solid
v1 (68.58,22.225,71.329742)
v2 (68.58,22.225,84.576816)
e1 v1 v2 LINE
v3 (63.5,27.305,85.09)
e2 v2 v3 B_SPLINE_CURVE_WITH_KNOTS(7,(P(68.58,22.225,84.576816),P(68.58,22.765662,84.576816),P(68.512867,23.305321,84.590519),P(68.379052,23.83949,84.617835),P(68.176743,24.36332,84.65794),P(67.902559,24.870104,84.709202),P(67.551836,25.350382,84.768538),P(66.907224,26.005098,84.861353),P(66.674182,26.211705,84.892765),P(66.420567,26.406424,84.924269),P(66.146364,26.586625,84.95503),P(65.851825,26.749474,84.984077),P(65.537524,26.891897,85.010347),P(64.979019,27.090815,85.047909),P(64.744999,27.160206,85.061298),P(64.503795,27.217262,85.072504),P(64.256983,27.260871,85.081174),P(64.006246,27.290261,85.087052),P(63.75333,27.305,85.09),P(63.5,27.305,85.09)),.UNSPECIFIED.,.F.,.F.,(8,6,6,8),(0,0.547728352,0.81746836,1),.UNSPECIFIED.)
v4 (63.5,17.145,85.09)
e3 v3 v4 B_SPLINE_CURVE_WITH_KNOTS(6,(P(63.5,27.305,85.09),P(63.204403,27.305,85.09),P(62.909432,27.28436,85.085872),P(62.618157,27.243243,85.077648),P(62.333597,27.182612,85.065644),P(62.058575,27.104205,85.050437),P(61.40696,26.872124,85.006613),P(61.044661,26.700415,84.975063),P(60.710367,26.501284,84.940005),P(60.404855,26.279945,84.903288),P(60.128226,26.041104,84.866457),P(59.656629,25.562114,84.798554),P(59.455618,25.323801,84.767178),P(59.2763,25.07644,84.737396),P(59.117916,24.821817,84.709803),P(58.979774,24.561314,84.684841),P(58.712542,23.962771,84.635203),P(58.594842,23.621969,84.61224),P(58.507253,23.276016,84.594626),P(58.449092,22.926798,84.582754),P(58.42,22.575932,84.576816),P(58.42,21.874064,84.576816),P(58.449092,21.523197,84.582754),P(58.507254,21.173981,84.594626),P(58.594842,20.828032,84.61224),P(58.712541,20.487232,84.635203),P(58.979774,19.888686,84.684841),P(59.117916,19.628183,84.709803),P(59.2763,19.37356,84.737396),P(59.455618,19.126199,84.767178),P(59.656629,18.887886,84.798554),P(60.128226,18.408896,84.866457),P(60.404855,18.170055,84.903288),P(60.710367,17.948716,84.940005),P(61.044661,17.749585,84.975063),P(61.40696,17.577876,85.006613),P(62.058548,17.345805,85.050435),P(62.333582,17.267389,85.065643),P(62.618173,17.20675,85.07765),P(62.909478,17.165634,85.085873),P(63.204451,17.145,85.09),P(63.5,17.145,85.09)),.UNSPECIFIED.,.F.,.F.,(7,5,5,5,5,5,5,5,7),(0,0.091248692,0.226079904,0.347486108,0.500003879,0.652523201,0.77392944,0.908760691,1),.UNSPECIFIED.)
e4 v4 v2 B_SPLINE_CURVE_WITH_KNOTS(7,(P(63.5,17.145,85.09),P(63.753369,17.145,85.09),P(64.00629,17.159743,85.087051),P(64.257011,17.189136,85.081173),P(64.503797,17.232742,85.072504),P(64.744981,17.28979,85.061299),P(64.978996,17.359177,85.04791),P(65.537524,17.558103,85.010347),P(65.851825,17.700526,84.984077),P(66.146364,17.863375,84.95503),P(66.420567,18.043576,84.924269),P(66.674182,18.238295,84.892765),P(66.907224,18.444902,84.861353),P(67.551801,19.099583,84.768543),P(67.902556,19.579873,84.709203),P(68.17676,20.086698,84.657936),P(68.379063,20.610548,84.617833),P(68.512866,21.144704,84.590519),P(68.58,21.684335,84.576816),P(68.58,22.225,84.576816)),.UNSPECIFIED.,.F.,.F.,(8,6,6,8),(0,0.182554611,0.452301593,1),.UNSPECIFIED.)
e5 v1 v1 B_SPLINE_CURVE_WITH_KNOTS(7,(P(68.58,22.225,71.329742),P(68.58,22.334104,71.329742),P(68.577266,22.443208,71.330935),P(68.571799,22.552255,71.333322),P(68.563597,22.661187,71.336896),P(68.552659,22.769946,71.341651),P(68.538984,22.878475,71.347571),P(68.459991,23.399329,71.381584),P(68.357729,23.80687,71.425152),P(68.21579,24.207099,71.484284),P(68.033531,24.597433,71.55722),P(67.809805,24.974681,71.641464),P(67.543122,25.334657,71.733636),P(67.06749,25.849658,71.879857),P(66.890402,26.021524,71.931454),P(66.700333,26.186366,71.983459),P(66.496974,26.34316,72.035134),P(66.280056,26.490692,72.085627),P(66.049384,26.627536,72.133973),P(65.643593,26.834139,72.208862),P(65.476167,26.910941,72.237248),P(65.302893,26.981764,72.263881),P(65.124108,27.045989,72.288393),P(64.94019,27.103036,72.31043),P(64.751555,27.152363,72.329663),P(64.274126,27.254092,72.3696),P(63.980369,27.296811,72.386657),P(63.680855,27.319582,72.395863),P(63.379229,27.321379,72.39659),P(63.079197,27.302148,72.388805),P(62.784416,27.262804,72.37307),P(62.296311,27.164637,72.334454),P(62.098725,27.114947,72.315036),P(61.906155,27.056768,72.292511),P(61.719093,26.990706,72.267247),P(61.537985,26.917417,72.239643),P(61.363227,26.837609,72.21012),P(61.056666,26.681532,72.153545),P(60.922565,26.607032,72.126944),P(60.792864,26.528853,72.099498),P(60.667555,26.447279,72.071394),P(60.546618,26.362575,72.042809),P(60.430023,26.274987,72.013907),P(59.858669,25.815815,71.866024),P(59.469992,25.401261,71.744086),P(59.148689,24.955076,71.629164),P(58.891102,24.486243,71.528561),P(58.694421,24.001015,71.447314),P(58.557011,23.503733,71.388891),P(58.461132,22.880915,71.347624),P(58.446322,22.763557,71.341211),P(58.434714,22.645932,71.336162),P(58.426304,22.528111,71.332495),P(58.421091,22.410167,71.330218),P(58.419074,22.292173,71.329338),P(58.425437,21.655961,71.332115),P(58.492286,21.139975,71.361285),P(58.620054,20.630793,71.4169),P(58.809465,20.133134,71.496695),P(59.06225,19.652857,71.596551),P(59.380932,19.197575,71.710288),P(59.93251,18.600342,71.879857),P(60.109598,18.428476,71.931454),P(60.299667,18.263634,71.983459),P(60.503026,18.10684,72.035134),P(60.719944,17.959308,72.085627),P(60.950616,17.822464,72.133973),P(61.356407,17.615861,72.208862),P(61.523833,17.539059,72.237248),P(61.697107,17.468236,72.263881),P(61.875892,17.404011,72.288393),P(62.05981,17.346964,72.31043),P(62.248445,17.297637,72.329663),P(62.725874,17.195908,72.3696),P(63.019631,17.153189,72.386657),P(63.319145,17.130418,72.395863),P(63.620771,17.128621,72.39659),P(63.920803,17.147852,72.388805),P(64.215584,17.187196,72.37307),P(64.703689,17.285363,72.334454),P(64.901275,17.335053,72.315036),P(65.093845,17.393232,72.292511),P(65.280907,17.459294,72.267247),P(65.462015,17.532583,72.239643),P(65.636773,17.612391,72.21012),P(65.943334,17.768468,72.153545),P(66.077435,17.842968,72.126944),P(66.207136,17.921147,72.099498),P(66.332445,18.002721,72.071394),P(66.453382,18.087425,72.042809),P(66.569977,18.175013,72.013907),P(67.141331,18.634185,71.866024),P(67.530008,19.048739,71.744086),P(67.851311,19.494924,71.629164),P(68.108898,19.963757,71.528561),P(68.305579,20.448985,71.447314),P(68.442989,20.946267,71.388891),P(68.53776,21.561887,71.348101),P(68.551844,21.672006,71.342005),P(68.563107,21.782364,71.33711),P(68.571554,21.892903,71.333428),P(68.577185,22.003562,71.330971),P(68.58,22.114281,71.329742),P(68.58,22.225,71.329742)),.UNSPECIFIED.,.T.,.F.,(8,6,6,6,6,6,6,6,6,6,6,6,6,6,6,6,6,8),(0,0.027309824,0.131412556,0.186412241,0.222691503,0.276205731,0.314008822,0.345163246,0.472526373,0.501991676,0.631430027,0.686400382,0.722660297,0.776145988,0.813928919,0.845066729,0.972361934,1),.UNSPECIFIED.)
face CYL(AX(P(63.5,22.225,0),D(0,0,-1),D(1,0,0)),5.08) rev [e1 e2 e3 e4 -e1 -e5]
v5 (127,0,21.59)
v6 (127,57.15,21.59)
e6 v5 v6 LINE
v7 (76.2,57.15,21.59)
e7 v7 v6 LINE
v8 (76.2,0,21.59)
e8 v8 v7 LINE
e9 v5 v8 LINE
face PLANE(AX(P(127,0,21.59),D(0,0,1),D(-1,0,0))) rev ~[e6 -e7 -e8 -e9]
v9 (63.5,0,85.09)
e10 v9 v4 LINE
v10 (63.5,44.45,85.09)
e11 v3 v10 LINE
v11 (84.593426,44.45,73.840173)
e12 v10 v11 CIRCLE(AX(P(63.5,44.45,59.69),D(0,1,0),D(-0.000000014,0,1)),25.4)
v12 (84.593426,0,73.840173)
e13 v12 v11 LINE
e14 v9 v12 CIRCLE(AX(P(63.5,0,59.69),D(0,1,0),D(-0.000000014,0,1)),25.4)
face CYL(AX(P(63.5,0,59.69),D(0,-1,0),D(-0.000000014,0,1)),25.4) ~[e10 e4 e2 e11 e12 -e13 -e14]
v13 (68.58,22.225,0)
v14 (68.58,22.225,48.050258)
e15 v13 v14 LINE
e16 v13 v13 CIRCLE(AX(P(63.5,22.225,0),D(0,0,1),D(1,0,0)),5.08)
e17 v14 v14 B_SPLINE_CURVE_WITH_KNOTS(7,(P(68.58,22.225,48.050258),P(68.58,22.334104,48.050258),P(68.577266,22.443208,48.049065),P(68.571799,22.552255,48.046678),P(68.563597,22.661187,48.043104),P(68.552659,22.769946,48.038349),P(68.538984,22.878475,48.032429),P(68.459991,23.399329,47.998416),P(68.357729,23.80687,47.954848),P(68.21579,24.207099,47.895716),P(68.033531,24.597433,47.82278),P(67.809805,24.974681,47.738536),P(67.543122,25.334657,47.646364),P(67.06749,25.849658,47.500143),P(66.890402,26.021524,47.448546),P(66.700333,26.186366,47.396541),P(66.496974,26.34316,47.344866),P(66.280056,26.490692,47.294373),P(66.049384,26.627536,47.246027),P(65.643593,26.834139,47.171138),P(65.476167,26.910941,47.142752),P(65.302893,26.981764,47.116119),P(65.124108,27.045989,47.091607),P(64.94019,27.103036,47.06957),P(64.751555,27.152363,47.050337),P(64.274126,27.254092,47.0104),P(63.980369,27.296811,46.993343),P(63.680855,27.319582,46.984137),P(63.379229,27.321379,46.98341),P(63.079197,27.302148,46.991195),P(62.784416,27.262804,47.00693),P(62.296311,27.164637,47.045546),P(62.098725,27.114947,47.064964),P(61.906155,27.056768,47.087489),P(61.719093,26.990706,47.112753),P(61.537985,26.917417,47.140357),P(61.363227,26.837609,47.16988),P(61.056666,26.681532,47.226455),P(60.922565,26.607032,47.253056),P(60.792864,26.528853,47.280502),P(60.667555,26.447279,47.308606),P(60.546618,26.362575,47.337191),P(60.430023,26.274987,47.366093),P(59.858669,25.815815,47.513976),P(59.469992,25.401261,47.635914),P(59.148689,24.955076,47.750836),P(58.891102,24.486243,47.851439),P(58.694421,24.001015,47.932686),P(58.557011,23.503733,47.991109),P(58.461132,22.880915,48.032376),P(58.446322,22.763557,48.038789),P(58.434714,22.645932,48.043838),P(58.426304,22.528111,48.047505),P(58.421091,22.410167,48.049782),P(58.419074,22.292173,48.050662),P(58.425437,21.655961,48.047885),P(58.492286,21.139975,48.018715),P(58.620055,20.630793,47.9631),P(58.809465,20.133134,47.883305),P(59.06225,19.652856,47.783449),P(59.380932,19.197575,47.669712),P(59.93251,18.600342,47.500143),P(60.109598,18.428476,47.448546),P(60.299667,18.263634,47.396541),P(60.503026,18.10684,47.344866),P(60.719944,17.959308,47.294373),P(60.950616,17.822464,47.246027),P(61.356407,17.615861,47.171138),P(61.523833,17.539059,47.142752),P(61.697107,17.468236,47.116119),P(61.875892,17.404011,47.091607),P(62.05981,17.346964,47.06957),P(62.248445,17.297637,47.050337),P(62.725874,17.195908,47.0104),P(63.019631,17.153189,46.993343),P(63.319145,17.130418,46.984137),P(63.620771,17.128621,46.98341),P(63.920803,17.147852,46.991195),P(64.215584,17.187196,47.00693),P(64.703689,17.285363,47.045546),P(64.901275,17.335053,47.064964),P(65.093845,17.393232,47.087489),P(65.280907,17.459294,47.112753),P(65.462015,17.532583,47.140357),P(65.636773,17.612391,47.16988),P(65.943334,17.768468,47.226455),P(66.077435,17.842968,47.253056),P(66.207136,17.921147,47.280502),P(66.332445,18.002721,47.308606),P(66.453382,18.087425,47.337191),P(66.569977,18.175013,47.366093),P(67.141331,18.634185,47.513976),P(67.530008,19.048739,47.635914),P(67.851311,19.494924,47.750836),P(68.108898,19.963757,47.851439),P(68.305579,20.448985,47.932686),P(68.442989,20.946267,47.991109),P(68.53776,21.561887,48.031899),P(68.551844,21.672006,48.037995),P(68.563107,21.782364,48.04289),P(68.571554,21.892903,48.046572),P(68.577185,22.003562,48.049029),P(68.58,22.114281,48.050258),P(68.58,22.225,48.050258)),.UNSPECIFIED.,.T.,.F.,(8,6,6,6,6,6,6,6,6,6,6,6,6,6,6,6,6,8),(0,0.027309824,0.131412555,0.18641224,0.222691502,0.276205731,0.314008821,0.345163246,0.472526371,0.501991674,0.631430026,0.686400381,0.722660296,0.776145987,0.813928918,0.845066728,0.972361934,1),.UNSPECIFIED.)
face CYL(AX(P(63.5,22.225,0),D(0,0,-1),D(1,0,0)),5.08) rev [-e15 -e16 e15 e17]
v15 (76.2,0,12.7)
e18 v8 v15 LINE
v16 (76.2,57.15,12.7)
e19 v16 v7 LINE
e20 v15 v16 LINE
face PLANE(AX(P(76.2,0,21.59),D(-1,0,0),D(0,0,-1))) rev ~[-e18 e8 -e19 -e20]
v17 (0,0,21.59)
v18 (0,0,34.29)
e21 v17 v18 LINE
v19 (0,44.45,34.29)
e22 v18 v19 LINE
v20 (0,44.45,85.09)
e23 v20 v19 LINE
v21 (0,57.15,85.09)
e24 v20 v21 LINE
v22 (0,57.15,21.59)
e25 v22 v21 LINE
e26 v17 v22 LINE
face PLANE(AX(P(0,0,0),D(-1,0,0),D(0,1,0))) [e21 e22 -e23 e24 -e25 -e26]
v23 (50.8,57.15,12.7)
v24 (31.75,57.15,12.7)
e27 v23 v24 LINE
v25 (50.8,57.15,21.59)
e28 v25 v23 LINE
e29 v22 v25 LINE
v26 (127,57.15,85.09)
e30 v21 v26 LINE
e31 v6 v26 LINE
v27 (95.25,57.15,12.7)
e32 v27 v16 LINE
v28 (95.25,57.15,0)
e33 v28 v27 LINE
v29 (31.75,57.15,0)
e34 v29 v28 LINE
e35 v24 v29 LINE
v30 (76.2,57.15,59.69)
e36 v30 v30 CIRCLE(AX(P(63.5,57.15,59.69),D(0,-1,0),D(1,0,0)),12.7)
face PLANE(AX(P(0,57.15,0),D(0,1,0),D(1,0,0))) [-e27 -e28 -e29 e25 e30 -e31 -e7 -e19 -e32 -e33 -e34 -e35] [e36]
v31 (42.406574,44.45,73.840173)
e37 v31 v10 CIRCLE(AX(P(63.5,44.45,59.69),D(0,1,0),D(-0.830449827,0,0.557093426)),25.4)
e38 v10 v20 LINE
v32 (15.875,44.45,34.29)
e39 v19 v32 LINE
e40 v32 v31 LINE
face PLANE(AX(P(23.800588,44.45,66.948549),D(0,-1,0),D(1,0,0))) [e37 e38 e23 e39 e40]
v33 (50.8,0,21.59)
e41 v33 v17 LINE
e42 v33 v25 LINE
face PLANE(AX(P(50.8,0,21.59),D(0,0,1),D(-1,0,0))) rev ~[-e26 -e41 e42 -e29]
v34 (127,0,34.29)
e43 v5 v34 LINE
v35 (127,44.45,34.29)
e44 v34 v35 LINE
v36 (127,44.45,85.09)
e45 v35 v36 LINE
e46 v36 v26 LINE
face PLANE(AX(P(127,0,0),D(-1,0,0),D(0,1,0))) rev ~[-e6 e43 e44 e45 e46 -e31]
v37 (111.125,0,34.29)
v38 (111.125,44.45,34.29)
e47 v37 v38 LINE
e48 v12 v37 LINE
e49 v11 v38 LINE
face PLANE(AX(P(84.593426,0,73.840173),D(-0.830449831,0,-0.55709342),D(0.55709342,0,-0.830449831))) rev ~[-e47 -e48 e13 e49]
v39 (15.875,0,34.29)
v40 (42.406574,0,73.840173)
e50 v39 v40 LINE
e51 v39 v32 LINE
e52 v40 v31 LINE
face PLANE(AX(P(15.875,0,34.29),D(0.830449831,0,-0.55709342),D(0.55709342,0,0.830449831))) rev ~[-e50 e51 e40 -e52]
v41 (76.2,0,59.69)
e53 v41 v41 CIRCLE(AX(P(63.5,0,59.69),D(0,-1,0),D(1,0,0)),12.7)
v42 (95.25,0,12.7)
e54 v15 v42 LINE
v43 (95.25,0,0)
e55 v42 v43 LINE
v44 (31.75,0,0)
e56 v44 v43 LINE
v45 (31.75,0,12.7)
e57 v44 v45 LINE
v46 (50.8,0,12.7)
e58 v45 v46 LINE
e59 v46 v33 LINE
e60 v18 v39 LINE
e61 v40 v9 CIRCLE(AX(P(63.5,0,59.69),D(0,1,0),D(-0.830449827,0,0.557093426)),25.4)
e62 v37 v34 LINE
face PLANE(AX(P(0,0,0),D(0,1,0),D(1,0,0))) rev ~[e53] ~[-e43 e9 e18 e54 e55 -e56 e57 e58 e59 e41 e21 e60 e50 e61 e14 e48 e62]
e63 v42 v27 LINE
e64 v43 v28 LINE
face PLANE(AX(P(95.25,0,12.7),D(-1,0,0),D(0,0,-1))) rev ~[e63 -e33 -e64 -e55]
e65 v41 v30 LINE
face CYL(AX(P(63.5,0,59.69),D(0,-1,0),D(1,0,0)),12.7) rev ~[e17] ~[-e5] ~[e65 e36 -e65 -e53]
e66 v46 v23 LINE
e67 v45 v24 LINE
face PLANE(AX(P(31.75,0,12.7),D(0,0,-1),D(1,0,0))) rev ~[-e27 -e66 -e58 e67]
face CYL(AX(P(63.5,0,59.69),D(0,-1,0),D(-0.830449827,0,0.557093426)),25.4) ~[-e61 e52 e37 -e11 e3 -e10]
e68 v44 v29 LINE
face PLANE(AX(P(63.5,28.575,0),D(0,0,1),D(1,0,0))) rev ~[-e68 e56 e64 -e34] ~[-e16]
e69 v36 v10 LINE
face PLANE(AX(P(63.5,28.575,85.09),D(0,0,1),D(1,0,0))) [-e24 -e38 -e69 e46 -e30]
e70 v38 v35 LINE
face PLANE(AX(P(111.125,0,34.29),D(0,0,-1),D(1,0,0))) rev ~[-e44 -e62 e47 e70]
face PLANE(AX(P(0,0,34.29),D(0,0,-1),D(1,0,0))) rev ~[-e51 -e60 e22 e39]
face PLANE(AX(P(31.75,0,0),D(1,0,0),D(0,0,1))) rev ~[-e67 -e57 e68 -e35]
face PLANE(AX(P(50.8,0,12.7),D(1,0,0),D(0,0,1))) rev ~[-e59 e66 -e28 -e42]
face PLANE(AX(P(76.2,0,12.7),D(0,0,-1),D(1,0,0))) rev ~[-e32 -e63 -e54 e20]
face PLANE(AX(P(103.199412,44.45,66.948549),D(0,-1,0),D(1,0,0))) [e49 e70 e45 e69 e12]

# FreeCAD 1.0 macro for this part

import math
import FreeCAD as App
import Part
import Sketcher
from FreeCAD import Vector
Q = App.Units.Quantity

doc = App.newDocument("Part")
params = doc.addObject("Spreadsheet::Sheet", "Params")
for row, (alias, value) in enumerate([
    ("sketch1_diameter", "0.4 in"),
    ("sketch1_width", "5 in"),
    ("sketch1_height", "2.25 in"),
    ("pad1_length", "3.35 in"),
    ("sketch2_radius", "1 in"),
    ("sketch2_height", "2 in"),
    ("sketch2_width", "2.5 in"),
    ("sketch2_width2", "0.625 in"),
    ("pocket1_length", "1.75 in"),
    ("sketch3_diameter", "1 in"),
    ("sketch3_width", "2 in"),
    ("sketch3_height", "0.5 in"),
    ("sketch3_width2", "0.75 in"),
    ("sketch3_height2", "0.35 in"),
], start=1):
    params.set(f"A{row}", alias)
    params.set(f"B{row}", "=" + value)
    params.setAlias(f"B{row}", alias)

body = doc.addObject("PartDesign::Body", "Body")

# Sketch on XY plane
sketch1 = doc.addObject("Sketcher::SketchObject", "Sketch")
body.addObject(sketch1)
sketch1.AttachmentSupport = (doc.XY_Plane, [""])
sketch1.MapMode = "FlatFace"
sketch1.addGeometry([
    Part.LineSegment(Vector(0, 57, 0), Vector(0, 0, 0)),  # 0
    Part.LineSegment(Vector(0, 0, 0), Vector(127, 0, 0)),  # 1
    Part.LineSegment(Vector(127, 0, 0), Vector(127, 57, 0)),  # 2
    Part.LineSegment(Vector(127, 57, 0), Vector(0, 57, 0)),  # 3
    Part.Circle(Vector(64, 22, 0), Vector(0, 0, 1), 5),  # 4
], False)
sketch1.addConstraint([
    Sketcher.Constraint("Coincident", 0, 2, 1, 1),
    Sketcher.Constraint("Coincident", 1, 2, 2, 1),
    Sketcher.Constraint("Coincident", 2, 2, 3, 1),
    Sketcher.Constraint("Coincident", 3, 2, 0, 1),
    Sketcher.Constraint("Vertical", 0),
    Sketcher.Constraint("Horizontal", 1),
    Sketcher.Constraint("Vertical", 2),
    Sketcher.Constraint("Horizontal", 3),
    Sketcher.Constraint("Coincident", 0, 2, -1, 1),
    Sketcher.Constraint("Diameter", 4, Q("0.4 in")),
    Sketcher.Constraint("DistanceX", 1, 1, 1, 2, Q("5 in")),
    Sketcher.Constraint("DistanceY", 0, 2, 0, 1, Q("2.25 in")),
    Sketcher.Constraint("DistanceX", -1, 1, 4, 3, Q("2.5 in")),
    Sketcher.Constraint("DistanceY", -1, 1, 4, 3, Q("0.875 in")),
])
sketch1.setExpression("Constraints[9]", "Params.sketch1_diameter")
sketch1.setExpression("Constraints[10]", "Params.sketch1_width")
sketch1.setExpression("Constraints[11]", "Params.sketch1_height")
pad1 = doc.addObject("PartDesign::Pad", "Pad")
body.addObject(pad1)
pad1.Profile = sketch1
pad1.setExpression("Length", "Params.pad1_length")

# Sketch on XZ plane
sketch2 = doc.addObject("Sketcher::SketchObject", "Sketch001")
body.addObject(sketch2)
sketch2.AttachmentSupport = (doc.XZ_Plane, [""])
sketch2.MapMode = "FlatFace"
sketch2.addGeometry([
    Part.LineSegment(Vector(0, 85, 0), Vector(0, 34, 0)),  # 0
    Part.LineSegment(Vector(0, 34, 0), Vector(16, 34, 0)),  # 1
    Part.LineSegment(Vector(16, 34, 0), Vector(42, 74, 0)),  # 2
    Part.ArcOfCircle(Part.Circle(Vector(63, 60, 0), Vector(0, 0, 1), 25), math.radians(90), math.radians(146)),  # 3
    Part.LineSegment(Vector(64, 85, 0), Vector(0, 85, 0)),  # 4
    Part.LineSegment(Vector(127, 85, 0), Vector(64, 85, 0)),  # 5
    Part.ArcOfCircle(Part.Circle(Vector(64, 60, 0), Vector(0, 0, 1), 25), math.radians(34), math.radians(90)),  # 6
    Part.LineSegment(Vector(85, 74, 0), Vector(111, 34, 0)),  # 7
    Part.LineSegment(Vector(111, 34, 0), Vector(127, 34, 0)),  # 8
    Part.LineSegment(Vector(127, 34, 0), Vector(127, 85, 0)),  # 9
], False)
sketch2.addConstraint([
    Sketcher.Constraint("Coincident", 0, 2, 1, 1),
    Sketcher.Constraint("Coincident", 1, 2, 2, 1),
    Sketcher.Constraint("Tangent", 2, 2, 3, 2),
    Sketcher.Constraint("Tangent", 3, 1, 4, 1),
    Sketcher.Constraint("Coincident", 4, 2, 0, 1),
    Sketcher.Constraint("Tangent", 5, 2, 6, 2),
    Sketcher.Constraint("Tangent", 6, 1, 7, 1),
    Sketcher.Constraint("Coincident", 7, 2, 8, 1),
    Sketcher.Constraint("Coincident", 8, 2, 9, 1),
    Sketcher.Constraint("Coincident", 9, 2, 5, 1),
    Sketcher.Constraint("Vertical", 0),
    Sketcher.Constraint("Horizontal", 1),
    Sketcher.Constraint("Horizontal", 4),
    Sketcher.Constraint("Horizontal", 5),
    Sketcher.Constraint("Horizontal", 8),
    Sketcher.Constraint("Vertical", 9),
    Sketcher.Constraint("Coincident", 6, 3, 3, 3),
    Sketcher.Constraint("Equal", 3, 6),
    Sketcher.Constraint("PointOnObject", 0, 2, -2),
    Sketcher.Constraint("Horizontal", 2, 2, 6, 1),
    Sketcher.Constraint("Horizontal", 1, 2, 7, 2),
    Sketcher.Constraint("Equal", 4, 5),
    Sketcher.Constraint("Radius", 3, Q("1 in")),
    Sketcher.Constraint("DistanceY", 0, 2, 0, 1, Q("2 in")),
    Sketcher.Constraint("DistanceX", 4, 2, 4, 1, Q("2.5 in")),
    Sketcher.Constraint("DistanceX", 1, 1, 1, 2, Q("0.625 in")),
    Sketcher.Constraint("DistanceY", -1, 1, 3, 3, Q("2.35 in")),
])
sketch2.setExpression("Constraints[22]", "Params.sketch2_radius")
sketch2.setExpression("Constraints[23]", "Params.sketch2_height")
sketch2.setExpression("Constraints[24]", "Params.sketch2_width")
sketch2.setExpression("Constraints[25]", "Params.sketch2_width2")
pocket1 = doc.addObject("PartDesign::Pocket", "Pocket")
body.addObject(pocket1)
pocket1.Profile = sketch2
pocket1.setExpression("Length", "Params.pocket1_length")

# Sketch on XZ plane
sketch3 = doc.addObject("Sketcher::SketchObject", "Sketch002")
body.addObject(sketch3)
sketch3.AttachmentSupport = (doc.XZ_Plane, [""])
sketch3.MapMode = "FlatFace"
sketch3.addGeometry([
    Part.LineSegment(Vector(32, 0, 0), Vector(32, 13, 0)),  # 0
    Part.LineSegment(Vector(32, 13, 0), Vector(51, 13, 0)),  # 1
    Part.LineSegment(Vector(51, 13, 0), Vector(51, 22, 0)),  # 2
    Part.LineSegment(Vector(51, 22, 0), Vector(0, 22, 0)),  # 3
    Part.LineSegment(Vector(0, 22, 0), Vector(0, 0, 0)),  # 4
    Part.LineSegment(Vector(0, 0, 0), Vector(32, 0, 0)),  # 5
    Part.LineSegment(Vector(95, 13, 0), Vector(95, 0, 0)),  # 6
    Part.LineSegment(Vector(95, 0, 0), Vector(127, 0, 0)),  # 7
    Part.LineSegment(Vector(127, 0, 0), Vector(127, 22, 0)),  # 8
    Part.LineSegment(Vector(127, 22, 0), Vector(76, 22, 0)),  # 9
    Part.LineSegment(Vector(76, 22, 0), Vector(76, 13, 0)),  # 10
    Part.LineSegment(Vector(76, 13, 0), Vector(95, 13, 0)),  # 11
    Part.Circle(Vector(64, 60, 0), Vector(0, 0, 1), 13),  # 12
], False)
sketch3.addConstraint([
    Sketcher.Constraint("Coincident", 0, 2, 1, 1),
    Sketcher.Constraint("Coincident", 1, 2, 2, 1),
    Sketcher.Constraint("Coincident", 2, 2, 3, 1),
    Sketcher.Constraint("Coincident", 3, 2, 4, 1),
    Sketcher.Constraint("Coincident", 4, 2, 5, 1),
    Sketcher.Constraint("Coincident", 5, 2, 0, 1),
    Sketcher.Constraint("Coincident", 6, 2, 7, 1),
    Sketcher.Constraint("Coincident", 7, 2, 8, 1),
    Sketcher.Constraint("Coincident", 8, 2, 9, 1),
    Sketcher.Constraint("Coincident", 9, 2, 10, 1),
    Sketcher.Constraint("Coincident", 10, 2, 11, 1),
    Sketcher.Constraint("Coincident", 11, 2, 6, 1),
    Sketcher.Constraint("Vertical", 0),
    Sketcher.Constraint("Horizontal", 1),
    Sketcher.Constraint("Vertical", 2),
    Sketcher.Constraint("Horizontal", 3),
    Sketcher.Constraint("Vertical", 4),
    Sketcher.Constraint("Horizontal", 5),
    Sketcher.Constraint("Vertical", 6),
    Sketcher.Constraint("Horizontal", 7),
    Sketcher.Constraint("Vertical", 8),
    Sketcher.Constraint("Horizontal", 9),
    Sketcher.Constraint("Vertical", 10),
    Sketcher.Constraint("Horizontal", 11),
    Sketcher.Constraint("Coincident", 4, 2, -1, 1),
    Sketcher.Constraint("PointOnObject", 6, 2, -1),
    Sketcher.Constraint("Horizontal", 3, 2, 8, 2),
    Sketcher.Constraint("Horizontal", 1, 2, 10, 2),
    Sketcher.Constraint("Equal", 5, 7),
    Sketcher.Constraint("Equal", 3, 9),
    Sketcher.Constraint("Diameter", 12, Q("1 in")),
    Sketcher.Constraint("DistanceX", 3, 2, 3, 1, Q("2 in")),
    Sketcher.Constraint("DistanceY", 0, 1, 0, 2, Q("0.5 in")),
    Sketcher.Constraint("DistanceX", -1, 1, 7, 2, Q("5 in")),
    Sketcher.Constraint("DistanceX", 1, 1, 1, 2, Q("0.75 in")),
    Sketcher.Constraint("DistanceY", 2, 1, 2, 2, Q("0.35 in")),
    Sketcher.Constraint("DistanceX", -1, 1, 12, 3, Q("2.5 in")),
    Sketcher.Constraint("DistanceY", 2, 2, 12, 3, Q("1.5 in")),
])
sketch3.setExpression("Constraints[30]", "Params.sketch3_diameter")
sketch3.setExpression("Constraints[31]", "Params.sketch3_width")
sketch3.setExpression("Constraints[32]", "Params.sketch3_height")
sketch3.setExpression("Constraints[34]", "Params.sketch3_width2")
sketch3.setExpression("Constraints[35]", "Params.sketch3_height2")
pocket2 = doc.addObject("PartDesign::Pocket", "Pocket001")
body.addObject(pocket2)
pocket2.Profile = sketch3
pocket2.Type = "ThroughAll"

doc.recompute()
